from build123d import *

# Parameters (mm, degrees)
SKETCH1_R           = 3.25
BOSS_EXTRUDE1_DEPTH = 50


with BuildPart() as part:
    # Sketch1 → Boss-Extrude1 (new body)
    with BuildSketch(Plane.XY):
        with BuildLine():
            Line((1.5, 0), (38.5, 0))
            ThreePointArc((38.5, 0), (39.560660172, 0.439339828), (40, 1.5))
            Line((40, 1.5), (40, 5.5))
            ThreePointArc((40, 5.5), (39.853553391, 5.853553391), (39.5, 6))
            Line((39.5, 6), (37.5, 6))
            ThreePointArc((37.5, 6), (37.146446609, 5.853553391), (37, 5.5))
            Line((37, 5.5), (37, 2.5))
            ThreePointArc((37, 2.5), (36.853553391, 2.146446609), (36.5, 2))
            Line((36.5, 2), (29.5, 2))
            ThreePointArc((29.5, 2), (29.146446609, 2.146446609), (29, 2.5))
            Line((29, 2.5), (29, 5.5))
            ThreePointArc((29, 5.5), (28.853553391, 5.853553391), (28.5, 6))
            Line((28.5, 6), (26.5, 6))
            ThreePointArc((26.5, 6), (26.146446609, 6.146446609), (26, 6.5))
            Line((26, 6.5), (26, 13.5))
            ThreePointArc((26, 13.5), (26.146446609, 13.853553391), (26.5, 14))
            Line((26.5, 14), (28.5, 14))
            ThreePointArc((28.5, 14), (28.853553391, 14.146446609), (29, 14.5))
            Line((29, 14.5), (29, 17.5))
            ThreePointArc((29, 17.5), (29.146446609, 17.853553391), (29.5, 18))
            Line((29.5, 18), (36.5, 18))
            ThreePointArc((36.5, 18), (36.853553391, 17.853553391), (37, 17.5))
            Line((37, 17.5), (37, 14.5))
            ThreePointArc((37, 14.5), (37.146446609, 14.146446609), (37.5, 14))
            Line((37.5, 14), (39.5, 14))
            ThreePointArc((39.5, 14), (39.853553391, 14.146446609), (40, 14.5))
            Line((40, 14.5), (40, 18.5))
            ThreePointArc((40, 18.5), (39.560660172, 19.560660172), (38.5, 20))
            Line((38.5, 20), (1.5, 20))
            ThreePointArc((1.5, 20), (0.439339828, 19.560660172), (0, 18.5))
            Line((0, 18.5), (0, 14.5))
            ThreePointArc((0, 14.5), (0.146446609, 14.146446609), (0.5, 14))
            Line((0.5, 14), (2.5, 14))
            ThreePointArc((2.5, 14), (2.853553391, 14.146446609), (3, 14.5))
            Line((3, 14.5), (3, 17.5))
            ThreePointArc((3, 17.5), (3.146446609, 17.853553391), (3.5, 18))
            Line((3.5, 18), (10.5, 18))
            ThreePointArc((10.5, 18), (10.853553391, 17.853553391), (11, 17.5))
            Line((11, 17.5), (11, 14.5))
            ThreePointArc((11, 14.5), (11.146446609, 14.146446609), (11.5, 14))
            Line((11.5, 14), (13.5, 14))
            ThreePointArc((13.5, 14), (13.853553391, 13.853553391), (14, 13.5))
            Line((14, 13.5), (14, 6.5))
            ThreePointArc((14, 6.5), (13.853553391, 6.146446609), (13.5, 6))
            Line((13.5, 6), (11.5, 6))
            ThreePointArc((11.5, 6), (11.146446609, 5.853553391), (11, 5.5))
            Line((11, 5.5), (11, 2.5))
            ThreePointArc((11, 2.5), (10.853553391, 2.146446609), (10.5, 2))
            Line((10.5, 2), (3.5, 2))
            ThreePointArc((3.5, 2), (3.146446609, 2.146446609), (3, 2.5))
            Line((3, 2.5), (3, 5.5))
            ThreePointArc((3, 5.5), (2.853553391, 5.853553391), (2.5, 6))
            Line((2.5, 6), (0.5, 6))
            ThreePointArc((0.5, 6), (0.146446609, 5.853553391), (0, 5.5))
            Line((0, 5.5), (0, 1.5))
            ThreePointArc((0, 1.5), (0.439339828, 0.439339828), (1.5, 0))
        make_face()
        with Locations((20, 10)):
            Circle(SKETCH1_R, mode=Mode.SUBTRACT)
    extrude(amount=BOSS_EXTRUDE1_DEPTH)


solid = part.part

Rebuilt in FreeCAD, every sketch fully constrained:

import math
import FreeCAD as App
import Part
import Sketcher

V = App.Vector
Q = App.Units.Quantity

doc = App.newDocument("Part")
body = doc.addObject("PartDesign::Body", "Body")

sketch1 = doc.addObject("Sketcher::SketchObject", "Sketch")
body.addObject(sketch1)
sketch1.AttachmentSupport = (doc.XY_Plane, [""])
sketch1.MapMode = "FlatFace"
sketch1.addGeometry([
    Part.LineSegment(V(1.5, 0, 0), V(38.5, 0, 0)),
    Part.ArcOfCircle(Part.Circle(V(38.5, 1.5, 0), V(0, 0, 1), 1.5), math.radians(-90), math.radians(0)),
    Part.LineSegment(V(40, 1.5, 0), V(40, 5.5, 0)),
    Part.ArcOfCircle(Part.Circle(V(39.5, 5.5, 0), V(0, 0, 1), 0.5), math.radians(0), math.radians(90)),
    Part.LineSegment(V(39.5, 6, 0), V(37.5, 6, 0)),
    Part.ArcOfCircle(Part.Circle(V(37.5, 5.5, 0), V(0, 0, 1), 0.5), math.radians(90), math.radians(180)),
    Part.LineSegment(V(37, 5.5, 0), V(37, 2.5, 0)),
    Part.ArcOfCircle(Part.Circle(V(36.5, 2.5, 0), V(0, 0, 1), 0.5), math.radians(-90), math.radians(0)),
    Part.LineSegment(V(36.5, 2, 0), V(29.5, 2, 0)),
    Part.ArcOfCircle(Part.Circle(V(29.5, 2.5, 0), V(0, 0, 1), 0.5), math.radians(180), math.radians(270)),
    Part.LineSegment(V(29, 2.5, 0), V(29, 5.5, 0)),
    Part.ArcOfCircle(Part.Circle(V(28.5, 5.5, 0), V(0, 0, 1), 0.5), math.radians(0), math.radians(90)),
    Part.LineSegment(V(28.5, 6, 0), V(26.5, 6, 0)),
    Part.ArcOfCircle(Part.Circle(V(26.5, 6.5, 0), V(0, 0, 1), 0.5), math.radians(180), math.radians(270)),
    Part.LineSegment(V(26, 6.5, 0), V(26, 13.5, 0)),
    Part.ArcOfCircle(Part.Circle(V(26.5, 13.5, 0), V(0, 0, 1), 0.5), math.radians(90), math.radians(180)),
    Part.LineSegment(V(26.5, 14, 0), V(28.5, 14, 0)),
    Part.ArcOfCircle(Part.Circle(V(28.5, 14.5, 0), V(0, 0, 1), 0.5), math.radians(-90), math.radians(0)),
    Part.LineSegment(V(29, 14.5, 0), V(29, 17.5, 0)),
    Part.ArcOfCircle(Part.Circle(V(29.5, 17.5, 0), V(0, 0, 1), 0.5), math.radians(90), math.radians(180)),
    Part.LineSegment(V(29.5, 18, 0), V(36.5, 18, 0)),
    Part.ArcOfCircle(Part.Circle(V(36.5, 17.5, 0), V(0, 0, 1), 0.5), math.radians(0), math.radians(90)),
    Part.LineSegment(V(37, 17.5, 0), V(37, 14.5, 0)),
    Part.ArcOfCircle(Part.Circle(V(37.5, 14.5, 0), V(0, 0, 1), 0.5), math.radians(180), math.radians(270)),
    Part.LineSegment(V(37.5, 14, 0), V(39.5, 14, 0)),
    Part.ArcOfCircle(Part.Circle(V(39.5, 14.5, 0), V(0, 0, 1), 0.5), math.radians(-90), math.radians(0)),
    Part.LineSegment(V(40, 14.5, 0), V(40, 18.5, 0)),
    Part.ArcOfCircle(Part.Circle(V(38.5, 18.5, 0), V(0, 0, 1), 1.5), math.radians(0), math.radians(90)),
    Part.LineSegment(V(38.5, 20, 0), V(1.5, 20, 0)),
    Part.ArcOfCircle(Part.Circle(V(1.5, 18.5, 0), V(0, 0, 1), 1.5), math.radians(90), math.radians(180)),
    Part.LineSegment(V(0, 18.5, 0), V(0, 14.5, 0)),
    Part.ArcOfCircle(Part.Circle(V(0.5, 14.5, 0), V(0, 0, 1), 0.5), math.radians(180), math.radians(270)),
    Part.LineSegment(V(0.5, 14, 0), V(2.5, 14, 0)),
    Part.ArcOfCircle(Part.Circle(V(2.5, 14.5, 0), V(0, 0, 1), 0.5), math.radians(-90), math.radians(0)),
    Part.LineSegment(V(3, 14.5, 0), V(3, 17.5, 0)),
    Part.ArcOfCircle(Part.Circle(V(3.5, 17.5, 0), V(0, 0, 1), 0.5), math.radians(90), math.radians(180)),
    Part.LineSegment(V(3.5, 18, 0), V(10.5, 18, 0)),
    Part.ArcOfCircle(Part.Circle(V(10.5, 17.5, 0), V(0, 0, 1), 0.5), math.radians(0), math.radians(90)),
    Part.LineSegment(V(11, 17.5, 0), V(11, 14.5, 0)),
    Part.ArcOfCircle(Part.Circle(V(11.5, 14.5, 0), V(0, 0, 1), 0.5), math.radians(180), math.radians(270)),
    Part.LineSegment(V(11.5, 14, 0), V(13.5, 14, 0)),
    Part.ArcOfCircle(Part.Circle(V(13.5, 13.5, 0), V(0, 0, 1), 0.5), math.radians(0), math.radians(90)),
    Part.LineSegment(V(14, 13.5, 0), V(14, 6.5, 0)),
    Part.ArcOfCircle(Part.Circle(V(13.5, 6.5, 0), V(0, 0, 1), 0.5), math.radians(-90), math.radians(0)),
    Part.LineSegment(V(13.5, 6, 0), V(11.5, 6, 0)),
    Part.ArcOfCircle(Part.Circle(V(11.5, 5.5, 0), V(0, 0, 1), 0.5), math.radians(90), math.radians(180)),
    Part.LineSegment(V(11, 5.5, 0), V(11, 2.5, 0)),
    Part.ArcOfCircle(Part.Circle(V(10.5, 2.5, 0), V(0, 0, 1), 0.5), math.radians(-90), math.radians(0)),
    Part.LineSegment(V(10.5, 2, 0), V(3.5, 2, 0)),
    Part.ArcOfCircle(Part.Circle(V(3.5, 2.5, 0), V(0, 0, 1), 0.5), math.radians(180), math.radians(270)),
    Part.LineSegment(V(3, 2.5, 0), V(3, 5.5, 0)),
    Part.ArcOfCircle(Part.Circle(V(2.5, 5.5, 0), V(0, 0, 1), 0.5), math.radians(0), math.radians(90)),
    Part.LineSegment(V(2.5, 6, 0), V(0.5, 6, 0)),
    Part.ArcOfCircle(Part.Circle(V(0.5, 5.5, 0), V(0, 0, 1), 0.5), math.radians(90), math.radians(180)),
    Part.LineSegment(V(0, 5.5, 0), V(0, 1.5, 0)),
    Part.ArcOfCircle(Part.Circle(V(1.5, 1.5, 0), V(0, 0, 1), 1.5), math.radians(180), math.radians(270)),
    Part.Circle(V(20, 10, 0), V(0, 0, 1), 3.25),
], False)
sketch1.addConstraint([
    Sketcher.Constraint("Tangent", 0, 2, 1, 1),
    Sketcher.Constraint("Tangent", 1, 2, 2, 1),
    Sketcher.Constraint("Tangent", 2, 2, 3, 1),
    Sketcher.Constraint("Tangent", 3, 2, 4, 1),
    Sketcher.Constraint("Tangent", 4, 2, 5, 1),
    Sketcher.Constraint("Tangent", 5, 2, 6, 1),
    Sketcher.Constraint("Tangent", 6, 2, 7, 2),
    Sketcher.Constraint("Tangent", 7, 1, 8, 1),
    Sketcher.Constraint("Tangent", 8, 2, 9, 2),
    Sketcher.Constraint("Tangent", 9, 1, 10, 1),
    Sketcher.Constraint("Tangent", 10, 2, 11, 1),
    Sketcher.Constraint("Tangent", 11, 2, 12, 1),
    Sketcher.Constraint("Tangent", 12, 2, 13, 2),
    Sketcher.Constraint("Tangent", 13, 1, 14, 1),
    Sketcher.Constraint("Tangent", 14, 2, 15, 2),
    Sketcher.Constraint("Tangent", 15, 1, 16, 1),
    Sketcher.Constraint("Tangent", 16, 2, 17, 1),
    Sketcher.Constraint("Tangent", 17, 2, 18, 1),
    Sketcher.Constraint("Tangent", 18, 2, 19, 2),
    Sketcher.Constraint("Tangent", 19, 1, 20, 1),
    Sketcher.Constraint("Tangent", 20, 2, 21, 2),
    Sketcher.Constraint("Tangent", 21, 1, 22, 1),
    Sketcher.Constraint("Tangent", 22, 2, 23, 1),
    Sketcher.Constraint("Tangent", 23, 2, 24, 1),
    Sketcher.Constraint("Tangent", 24, 2, 25, 1),
    Sketcher.Constraint("Tangent", 25, 2, 26, 1),
    Sketcher.Constraint("Tangent", 26, 2, 27, 1),
    Sketcher.Constraint("Tangent", 27, 2, 28, 1),
    Sketcher.Constraint("Tangent", 28, 2, 29, 1),
    Sketcher.Constraint("Tangent", 29, 2, 30, 1),
    Sketcher.Constraint("Tangent", 30, 2, 31, 1),
    Sketcher.Constraint("Tangent", 31, 2, 32, 1),
    Sketcher.Constraint("Tangent", 32, 2, 33, 1),
    Sketcher.Constraint("Tangent", 33, 2, 34, 1),
    Sketcher.Constraint("Tangent", 34, 2, 35, 2),
    Sketcher.Constraint("Tangent", 35, 1, 36, 1),
    Sketcher.Constraint("Tangent", 36, 2, 37, 2),
    Sketcher.Constraint("Tangent", 37, 1, 38, 1),
    Sketcher.Constraint("Tangent", 38, 2, 39, 1),
    Sketcher.Constraint("Tangent", 39, 2, 40, 1),
    Sketcher.Constraint("Tangent", 40, 2, 41, 2),
    Sketcher.Constraint("Tangent", 41, 1, 42, 1),
    Sketcher.Constraint("Tangent", 42, 2, 43, 2),
    Sketcher.Constraint("Tangent", 43, 1, 44, 1),
    Sketcher.Constraint("Tangent", 44, 2, 45, 1),
    Sketcher.Constraint("Tangent", 45, 2, 46, 1),
    Sketcher.Constraint("Tangent", 46, 2, 47, 2),
    Sketcher.Constraint("Tangent", 47, 1, 48, 1),
    Sketcher.Constraint("Tangent", 48, 2, 49, 2),
    Sketcher.Constraint("Tangent", 49, 1, 50, 1),
    Sketcher.Constraint("Tangent", 50, 2, 51, 1),
    Sketcher.Constraint("Tangent", 51, 2, 52, 1),
    Sketcher.Constraint("Tangent", 52, 2, 53, 1),
    Sketcher.Constraint("Tangent", 53, 2, 54, 1),
    Sketcher.Constraint("Tangent", 54, 2, 55, 1),
    Sketcher.Constraint("Tangent", 55, 2, 0, 1),
    Sketcher.Constraint("Horizontal", 0),
    Sketcher.Constraint("Vertical", 2),
    Sketcher.Constraint("Horizontal", 4),
    Sketcher.Constraint("Vertical", 6),
    Sketcher.Constraint("Horizontal", 8),
    Sketcher.Constraint("Vertical", 10),
    Sketcher.Constraint("Horizontal", 12),
    Sketcher.Constraint("Vertical", 14),
    Sketcher.Constraint("Horizontal", 16),
    Sketcher.Constraint("Vertical", 18),
    Sketcher.Constraint("Horizontal", 20),
    Sketcher.Constraint("Vertical", 22),
    Sketcher.Constraint("Horizontal", 24),
    Sketcher.Constraint("Vertical", 26),
    Sketcher.Constraint("Horizontal", 28),
    Sketcher.Constraint("Vertical", 30),
    Sketcher.Constraint("Horizontal", 32),
    Sketcher.Constraint("Vertical", 34),
    Sketcher.Constraint("Horizontal", 36),
    Sketcher.Constraint("Vertical", 38),
    Sketcher.Constraint("Horizontal", 40),
    Sketcher.Constraint("Vertical", 42),
    Sketcher.Constraint("Horizontal", 44),
    Sketcher.Constraint("Vertical", 46),
    Sketcher.Constraint("Horizontal", 48),
    Sketcher.Constraint("Vertical", 50),
    Sketcher.Constraint("Horizontal", 52),
    Sketcher.Constraint("Vertical", 54),
    Sketcher.Constraint("Equal", 3, 5),
    Sketcher.Constraint("Equal", 5, 7),
    Sketcher.Constraint("Equal", 7, 9),
    Sketcher.Constraint("Equal", 9, 11),
    Sketcher.Constraint("Equal", 11, 13),
    Sketcher.Constraint("Equal", 13, 15),
    Sketcher.Constraint("Equal", 15, 17),
    Sketcher.Constraint("Equal", 17, 19),
    Sketcher.Constraint("Equal", 19, 21),
    Sketcher.Constraint("Equal", 21, 23),
    Sketcher.Constraint("Equal", 23, 25),
    Sketcher.Constraint("Equal", 1, 27),
    Sketcher.Constraint("Equal", 27, 29),
    Sketcher.Constraint("Equal", 25, 31),
    Sketcher.Constraint("Equal", 31, 33),
    Sketcher.Constraint("Equal", 33, 35),
    Sketcher.Constraint("Equal", 35, 37),
    Sketcher.Constraint("Equal", 37, 39),
    Sketcher.Constraint("Equal", 39, 41),
    Sketcher.Constraint("Equal", 41, 43),
    Sketcher.Constraint("Equal", 43, 45),
    Sketcher.Constraint("Equal", 45, 47),
    Sketcher.Constraint("Equal", 47, 49),
    Sketcher.Constraint("Equal", 49, 51),
    Sketcher.Constraint("Equal", 51, 53),
    Sketcher.Constraint("Equal", 29, 55),
    Sketcher.Constraint("PointOnObject", 0, 2, -1),
    Sketcher.Constraint("PointOnObject", 29, 2, -2),
    Sketcher.Constraint("PointOnObject", 53, 2, -2),
    Sketcher.Constraint("Horizontal", 5, 3, 11, 3),
    Sketcher.Constraint("Horizontal", 17, 3, 23, 3),
    Sketcher.Constraint("Horizontal", 25, 3, 31, 3),
    Sketcher.Constraint("Horizontal", 21, 3, 35, 3),
    Sketcher.Constraint("Horizontal", 33, 3, 39, 3),
    Sketcher.Constraint("Horizontal", 13, 3, 43, 3),
    Sketcher.Constraint("Horizontal", 9, 3, 47, 3),
    Sketcher.Constraint("Horizontal", 45, 3, 51, 3),
    Sketcher.Constraint("Vertical", 11, 3, 17, 3),
    Sketcher.Constraint("Vertical", 7, 3, 21, 3),
    Sketcher.Constraint("Vertical", 3, 3, 25, 3),
    Sketcher.Constraint("Vertical", 39, 3, 45, 3),
    Sketcher.Constraint("Vertical", 35, 3, 49, 3),
    Sketcher.Constraint("Equal", 4, 12),
    Sketcher.Constraint("Equal", 24, 32),
    Sketcher.Constraint("Equal", 20, 36),
    Sketcher.Constraint("Equal", 32, 40),
    Sketcher.Constraint("Equal", 48, 14),
    Sketcher.Constraint("Equal", 10, 18),
    Sketcher.Constraint("Equal", 2, 26),
    Sketcher.Constraint("Diameter", 56, Q("6.5 mm")),
    Sketcher.Constraint("Radius", 1, Q("1.5 mm")),
    Sketcher.Constraint("Radius", 3, Q("0.5 mm")),
    Sketcher.Constraint("DistanceX", 0, 1, 0, 2, Q("37 mm")),
    Sketcher.Constraint("DistanceX", 4, 2, 4, 1, Q("2 mm")),
    Sketcher.Constraint("DistanceX", 8, 2, 8, 1, Q("7 mm")),
    Sketcher.Constraint("DistanceY", 2, 1, 2, 2, Q("4 mm")),
    Sketcher.Constraint("DistanceY", 6, 2, 6, 1, Q("3 mm")),
    Sketcher.Constraint("DistanceX", -1, 1, 56, 3, Q("20 mm")),
    Sketcher.Constraint("DistanceY", -1, 1, 56, 3, Q("10 mm")),
])
pad1 = doc.addObject("PartDesign::Pad", "Pad")
body.addObject(pad1)
pad1.Profile = sketch1
pad1.Length = 50

doc.recompute()
